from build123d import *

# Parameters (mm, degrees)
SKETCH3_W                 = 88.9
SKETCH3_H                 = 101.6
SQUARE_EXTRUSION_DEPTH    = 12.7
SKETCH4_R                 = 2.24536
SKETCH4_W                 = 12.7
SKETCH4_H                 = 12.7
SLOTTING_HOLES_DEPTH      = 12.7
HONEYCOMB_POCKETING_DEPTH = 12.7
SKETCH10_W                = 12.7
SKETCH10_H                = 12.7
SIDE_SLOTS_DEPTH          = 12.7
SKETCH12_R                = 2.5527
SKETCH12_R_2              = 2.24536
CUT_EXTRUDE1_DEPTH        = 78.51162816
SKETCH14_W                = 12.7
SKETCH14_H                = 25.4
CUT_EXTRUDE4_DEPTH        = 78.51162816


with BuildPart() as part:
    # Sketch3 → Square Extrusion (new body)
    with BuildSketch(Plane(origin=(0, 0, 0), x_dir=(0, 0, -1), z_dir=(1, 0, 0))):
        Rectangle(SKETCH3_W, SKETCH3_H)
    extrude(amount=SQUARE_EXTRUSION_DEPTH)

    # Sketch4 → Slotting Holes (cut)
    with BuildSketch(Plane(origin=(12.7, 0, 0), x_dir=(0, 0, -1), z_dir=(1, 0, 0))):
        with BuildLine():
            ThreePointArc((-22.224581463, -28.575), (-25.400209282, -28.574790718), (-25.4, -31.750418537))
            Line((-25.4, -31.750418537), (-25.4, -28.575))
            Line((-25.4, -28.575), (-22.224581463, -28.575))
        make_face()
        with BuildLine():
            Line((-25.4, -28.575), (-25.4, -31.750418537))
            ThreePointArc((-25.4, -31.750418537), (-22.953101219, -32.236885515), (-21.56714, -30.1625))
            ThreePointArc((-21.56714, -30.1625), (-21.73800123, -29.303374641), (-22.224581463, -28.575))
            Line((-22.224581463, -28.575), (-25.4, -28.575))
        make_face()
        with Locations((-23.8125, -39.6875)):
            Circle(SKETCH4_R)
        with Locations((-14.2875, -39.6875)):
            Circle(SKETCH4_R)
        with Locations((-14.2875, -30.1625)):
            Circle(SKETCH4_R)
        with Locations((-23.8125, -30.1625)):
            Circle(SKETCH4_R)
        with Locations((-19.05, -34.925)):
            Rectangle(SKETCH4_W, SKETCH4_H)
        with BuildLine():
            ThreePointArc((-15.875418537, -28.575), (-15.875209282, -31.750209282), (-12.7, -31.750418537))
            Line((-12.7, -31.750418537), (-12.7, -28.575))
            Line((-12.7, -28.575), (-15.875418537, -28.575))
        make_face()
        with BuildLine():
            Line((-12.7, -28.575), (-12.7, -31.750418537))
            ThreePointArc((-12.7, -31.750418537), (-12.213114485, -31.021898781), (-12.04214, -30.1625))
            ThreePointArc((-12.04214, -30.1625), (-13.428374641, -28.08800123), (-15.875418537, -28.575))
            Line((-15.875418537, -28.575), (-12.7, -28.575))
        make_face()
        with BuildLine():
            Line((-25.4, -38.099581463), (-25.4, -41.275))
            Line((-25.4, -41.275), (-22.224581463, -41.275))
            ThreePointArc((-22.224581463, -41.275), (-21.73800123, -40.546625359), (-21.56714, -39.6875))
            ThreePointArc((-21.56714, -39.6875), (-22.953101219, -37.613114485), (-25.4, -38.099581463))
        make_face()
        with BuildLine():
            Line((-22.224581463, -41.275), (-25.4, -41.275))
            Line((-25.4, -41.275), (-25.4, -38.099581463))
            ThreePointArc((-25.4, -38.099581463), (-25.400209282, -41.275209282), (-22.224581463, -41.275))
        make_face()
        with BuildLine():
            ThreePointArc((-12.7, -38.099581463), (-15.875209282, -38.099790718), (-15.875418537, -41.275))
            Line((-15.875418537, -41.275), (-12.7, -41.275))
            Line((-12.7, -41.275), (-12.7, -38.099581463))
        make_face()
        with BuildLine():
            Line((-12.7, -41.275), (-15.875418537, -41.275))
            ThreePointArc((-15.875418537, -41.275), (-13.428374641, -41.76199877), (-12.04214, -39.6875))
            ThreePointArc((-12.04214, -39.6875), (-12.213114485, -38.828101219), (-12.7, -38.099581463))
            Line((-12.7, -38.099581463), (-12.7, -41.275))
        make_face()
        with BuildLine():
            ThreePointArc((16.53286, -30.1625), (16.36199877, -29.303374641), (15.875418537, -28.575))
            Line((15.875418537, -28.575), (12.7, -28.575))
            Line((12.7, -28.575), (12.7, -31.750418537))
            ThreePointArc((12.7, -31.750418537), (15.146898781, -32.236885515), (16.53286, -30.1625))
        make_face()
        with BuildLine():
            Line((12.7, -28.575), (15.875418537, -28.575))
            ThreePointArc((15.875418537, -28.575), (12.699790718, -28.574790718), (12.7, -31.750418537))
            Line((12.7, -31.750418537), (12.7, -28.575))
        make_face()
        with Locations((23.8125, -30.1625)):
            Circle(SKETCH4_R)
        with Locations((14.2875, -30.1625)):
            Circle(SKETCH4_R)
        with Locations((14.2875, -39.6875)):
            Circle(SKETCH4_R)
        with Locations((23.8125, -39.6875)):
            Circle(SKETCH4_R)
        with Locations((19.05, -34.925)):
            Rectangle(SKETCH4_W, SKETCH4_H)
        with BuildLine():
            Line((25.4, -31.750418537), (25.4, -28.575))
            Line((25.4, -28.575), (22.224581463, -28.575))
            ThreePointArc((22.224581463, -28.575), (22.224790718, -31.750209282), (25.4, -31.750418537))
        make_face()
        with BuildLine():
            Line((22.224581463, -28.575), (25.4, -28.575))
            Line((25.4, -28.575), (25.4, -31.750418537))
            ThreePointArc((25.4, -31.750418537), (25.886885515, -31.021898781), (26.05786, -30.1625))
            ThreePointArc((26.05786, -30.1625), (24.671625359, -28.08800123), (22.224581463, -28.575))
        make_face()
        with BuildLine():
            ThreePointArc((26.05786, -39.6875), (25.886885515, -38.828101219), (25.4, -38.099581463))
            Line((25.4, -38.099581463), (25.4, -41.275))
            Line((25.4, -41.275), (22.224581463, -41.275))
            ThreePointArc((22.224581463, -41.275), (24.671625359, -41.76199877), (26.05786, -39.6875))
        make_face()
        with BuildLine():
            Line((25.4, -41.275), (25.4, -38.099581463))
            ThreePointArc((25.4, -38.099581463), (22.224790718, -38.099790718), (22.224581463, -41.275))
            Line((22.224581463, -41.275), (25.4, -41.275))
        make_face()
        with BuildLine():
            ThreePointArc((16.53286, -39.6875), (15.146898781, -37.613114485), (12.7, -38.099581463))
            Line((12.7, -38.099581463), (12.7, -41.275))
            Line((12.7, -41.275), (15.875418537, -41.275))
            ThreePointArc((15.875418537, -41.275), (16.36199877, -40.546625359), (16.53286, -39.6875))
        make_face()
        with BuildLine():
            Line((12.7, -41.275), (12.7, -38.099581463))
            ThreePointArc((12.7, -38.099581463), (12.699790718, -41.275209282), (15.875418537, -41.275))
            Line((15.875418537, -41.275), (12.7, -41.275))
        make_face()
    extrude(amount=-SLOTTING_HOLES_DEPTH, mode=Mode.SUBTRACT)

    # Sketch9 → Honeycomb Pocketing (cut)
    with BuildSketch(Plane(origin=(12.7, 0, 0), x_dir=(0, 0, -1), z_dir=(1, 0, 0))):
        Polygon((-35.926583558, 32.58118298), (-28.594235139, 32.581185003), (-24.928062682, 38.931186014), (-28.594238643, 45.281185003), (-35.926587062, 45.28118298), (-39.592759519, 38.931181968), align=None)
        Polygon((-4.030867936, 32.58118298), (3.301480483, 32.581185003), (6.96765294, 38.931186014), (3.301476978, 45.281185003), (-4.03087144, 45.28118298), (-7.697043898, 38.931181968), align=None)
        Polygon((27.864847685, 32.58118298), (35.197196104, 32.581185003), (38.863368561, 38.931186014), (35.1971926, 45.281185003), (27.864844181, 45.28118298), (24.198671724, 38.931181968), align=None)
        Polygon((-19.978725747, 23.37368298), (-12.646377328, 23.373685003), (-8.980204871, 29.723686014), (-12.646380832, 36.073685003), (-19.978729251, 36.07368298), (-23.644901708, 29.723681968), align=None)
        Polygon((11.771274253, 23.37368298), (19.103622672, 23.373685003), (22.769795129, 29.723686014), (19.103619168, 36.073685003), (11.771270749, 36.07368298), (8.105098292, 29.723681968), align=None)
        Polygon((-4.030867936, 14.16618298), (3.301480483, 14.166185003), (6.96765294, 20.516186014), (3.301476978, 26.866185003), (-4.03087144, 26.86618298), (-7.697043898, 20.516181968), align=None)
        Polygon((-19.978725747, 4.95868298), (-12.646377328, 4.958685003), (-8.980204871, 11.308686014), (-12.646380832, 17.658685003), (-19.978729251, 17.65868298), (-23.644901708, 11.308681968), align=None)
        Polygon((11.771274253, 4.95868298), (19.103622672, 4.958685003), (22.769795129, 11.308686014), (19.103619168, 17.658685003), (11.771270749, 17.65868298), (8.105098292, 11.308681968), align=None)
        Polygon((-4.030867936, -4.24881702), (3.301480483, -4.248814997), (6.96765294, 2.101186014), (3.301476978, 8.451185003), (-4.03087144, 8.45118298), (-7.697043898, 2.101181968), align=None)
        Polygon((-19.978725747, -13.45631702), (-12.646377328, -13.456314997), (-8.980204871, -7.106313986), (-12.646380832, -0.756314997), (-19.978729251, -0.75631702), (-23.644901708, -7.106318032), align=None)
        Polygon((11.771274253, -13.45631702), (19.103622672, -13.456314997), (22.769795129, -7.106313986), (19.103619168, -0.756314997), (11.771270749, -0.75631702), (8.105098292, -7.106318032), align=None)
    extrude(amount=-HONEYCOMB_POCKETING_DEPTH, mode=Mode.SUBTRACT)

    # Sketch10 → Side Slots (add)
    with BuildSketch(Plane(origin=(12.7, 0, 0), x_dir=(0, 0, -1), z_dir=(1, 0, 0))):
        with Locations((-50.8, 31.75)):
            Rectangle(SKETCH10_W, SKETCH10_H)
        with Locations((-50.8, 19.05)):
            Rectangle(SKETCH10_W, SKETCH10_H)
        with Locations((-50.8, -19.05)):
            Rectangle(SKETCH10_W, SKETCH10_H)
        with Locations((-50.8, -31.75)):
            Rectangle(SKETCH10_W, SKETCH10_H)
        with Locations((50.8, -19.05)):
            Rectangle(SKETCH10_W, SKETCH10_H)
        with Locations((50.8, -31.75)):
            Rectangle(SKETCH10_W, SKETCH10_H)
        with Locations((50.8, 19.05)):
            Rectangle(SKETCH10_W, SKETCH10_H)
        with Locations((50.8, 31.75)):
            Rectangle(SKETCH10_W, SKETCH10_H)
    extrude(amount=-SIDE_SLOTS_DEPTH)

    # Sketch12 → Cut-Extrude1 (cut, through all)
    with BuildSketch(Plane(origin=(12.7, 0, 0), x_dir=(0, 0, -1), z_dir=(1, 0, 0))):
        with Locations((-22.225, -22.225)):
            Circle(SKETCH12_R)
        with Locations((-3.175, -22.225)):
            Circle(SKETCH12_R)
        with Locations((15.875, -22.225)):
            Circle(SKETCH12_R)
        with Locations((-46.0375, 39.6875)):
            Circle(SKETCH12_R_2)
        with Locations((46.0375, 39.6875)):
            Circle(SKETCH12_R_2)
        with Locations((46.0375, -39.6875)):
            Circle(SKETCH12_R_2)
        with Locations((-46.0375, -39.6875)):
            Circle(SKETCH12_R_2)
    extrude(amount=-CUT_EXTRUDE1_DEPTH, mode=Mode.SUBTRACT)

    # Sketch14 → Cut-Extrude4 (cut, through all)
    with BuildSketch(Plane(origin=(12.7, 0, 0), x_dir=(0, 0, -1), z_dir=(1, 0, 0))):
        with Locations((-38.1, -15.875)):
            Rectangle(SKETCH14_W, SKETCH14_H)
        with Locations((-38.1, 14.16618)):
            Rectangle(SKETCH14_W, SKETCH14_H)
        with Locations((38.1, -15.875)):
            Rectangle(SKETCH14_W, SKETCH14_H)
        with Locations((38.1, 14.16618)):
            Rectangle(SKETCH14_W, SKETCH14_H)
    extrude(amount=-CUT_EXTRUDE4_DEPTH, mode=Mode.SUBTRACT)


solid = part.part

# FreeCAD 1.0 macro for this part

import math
import FreeCAD as App
import Part
import Sketcher
from FreeCAD import Vector
Q = App.Units.Quantity

doc = App.newDocument("Part")
body = doc.addObject("PartDesign::Body", "Body")

# Sketch on YZ plane
sketch1 = doc.addObject("Sketcher::SketchObject", "Sketch")
body.addObject(sketch1)
sketch1.AttachmentSupport = (doc.YZ_Plane, [""])
sketch1.MapMode = "FlatFace"
sketch1.addGeometry(Part.LineSegment(Vector(51, 44, 0), Vector(-51, 44, 0)), False)
sketch1.addGeometry(Part.LineSegment(Vector(-51, 44, 0), Vector(-51, -44, 0)), False)
sketch1.addGeometry(Part.LineSegment(Vector(-51, -44, 0), Vector(51, -44, 0)), False)
sketch1.addGeometry(Part.LineSegment(Vector(51, -44, 0), Vector(51, 44, 0)), False)
sketch1.addConstraint(Sketcher.Constraint("Coincident", 0, 2, 1, 1))
sketch1.addConstraint(Sketcher.Constraint("Coincident", 1, 2, 2, 1))
sketch1.addConstraint(Sketcher.Constraint("Coincident", 2, 2, 3, 1))
sketch1.addConstraint(Sketcher.Constraint("Coincident", 3, 2, 0, 1))
sketch1.addConstraint(Sketcher.Constraint("Horizontal", 0))
sketch1.addConstraint(Sketcher.Constraint("Vertical", 1))
sketch1.addConstraint(Sketcher.Constraint("Horizontal", 2))
sketch1.addConstraint(Sketcher.Constraint("Vertical", 3))
sketch1.addConstraint(Sketcher.Constraint("Symmetric", 0, 2, 2, 2, -1, 1))
sketch1.addConstraint(Sketcher.Constraint("DistanceX", 0, 2, 0, 1, Q("4 in")))
sketch1.addConstraint(Sketcher.Constraint("DistanceY", 1, 2, 1, 1, Q("3.5 in")))
pad1 = doc.addObject("PartDesign::Pad", "Pad")
body.addObject(pad1)
pad1.Profile = sketch1
pad1.Length = Q("0.5 in")

# Sketch on YZ plane
sketch2 = doc.addObject("Sketcher::SketchObject", "Sketch001")
body.addObject(sketch2)
sketch2.AttachmentSupport = (doc.YZ_Plane, [""])
sketch2.MapMode = "FlatFace"
sketch2.AttachmentOffset = App.Placement(Vector(0, 0, 0.5 * 25.4), App.Rotation())
sketch2.addGeometry(Part.LineSegment(Vector(-28.6, 15.9, 0), Vector(-28.6, 22.2, 0)), False)
sketch2.addGeometry(Part.ArcOfCircle(Part.Circle(Vector(-30.2, 23.8, 0), Vector(0, 0, 1), 2.2), math.radians(-45), math.radians(135)), False)
sketch2.addGeometry(Part.LineSegment(Vector(-31.8, 25.4, 0), Vector(-38.1, 25.4, 0)), False)
sketch2.addGeometry(Part.ArcOfCircle(Part.Circle(Vector(-39.7, 23.8, 0), Vector(0, 0, 1), 2.2), math.radians(45), math.radians(225)), False)
sketch2.addGeometry(Part.LineSegment(Vector(-41.3, 22.2, 0), Vector(-41.3, 15.9, 0)), False)
sketch2.addGeometry(Part.ArcOfCircle(Part.Circle(Vector(-39.7, 14.3, 0), Vector(0, 0, 1), 2.2), math.radians(135), math.radians(315)), False)
sketch2.addGeometry(Part.LineSegment(Vector(-38.1, 12.7, 0), Vector(-31.8, 12.7, 0)), False)
sketch2.addGeometry(Part.ArcOfCircle(Part.Circle(Vector(-30.2, 14.3, 0), Vector(0, 0, 1), 2.2), math.radians(-135), math.radians(45)), False)
sketch2.addGeometry(Part.ArcOfCircle(Part.Circle(Vector(-39.7, -14.3, 0), Vector(0, 0, 1), 2.2), math.radians(45), math.radians(225)), False)
sketch2.addGeometry(Part.LineSegment(Vector(-41.3, -15.9, 0), Vector(-41.3, -22.2, 0)), False)
sketch2.addGeometry(Part.ArcOfCircle(Part.Circle(Vector(-39.7, -23.8, 0), Vector(0, 0, 1), 2.2), math.radians(135), math.radians(315)), False)
sketch2.addGeometry(Part.LineSegment(Vector(-38.1, -25.4, 0), Vector(-31.8, -25.4, 0)), False)
sketch2.addGeometry(Part.ArcOfCircle(Part.Circle(Vector(-30.2, -23.8, 0), Vector(0, 0, 1), 2.2), math.radians(-135), math.radians(45)), False)
sketch2.addGeometry(Part.LineSegment(Vector(-28.6, -22.2, 0), Vector(-28.6, -15.9, 0)), False)
sketch2.addGeometry(Part.ArcOfCircle(Part.Circle(Vector(-30.2, -14.3, 0), Vector(0, 0, 1), 2.2), math.radians(-45), math.radians(135)), False)
sketch2.addGeometry(Part.LineSegment(Vector(-31.8, -12.7, 0), Vector(-38.1, -12.7, 0)), False)
sketch2.addConstraint(Sketcher.Constraint("Coincident", 0, 2, 1, 1))
sketch2.addConstraint(Sketcher.Constraint("Coincident", 1, 2, 2, 1))
sketch2.addConstraint(Sketcher.Constraint("Coincident", 2, 2, 3, 1))
sketch2.addConstraint(Sketcher.Constraint("Coincident", 3, 2, 4, 1))
sketch2.addConstraint(Sketcher.Constraint("Coincident", 4, 2, 5, 1))
sketch2.addConstraint(Sketcher.Constraint("Coincident", 5, 2, 6, 1))
sketch2.addConstraint(Sketcher.Constraint("Coincident", 6, 2, 7, 1))
sketch2.addConstraint(Sketcher.Constraint("Coincident", 7, 2, 0, 1))
sketch2.addConstraint(Sketcher.Constraint("Coincident", 8, 2, 9, 1))
sketch2.addConstraint(Sketcher.Constraint("Coincident", 9, 2, 10, 1))
sketch2.addConstraint(Sketcher.Constraint("Coincident", 10, 2, 11, 1))
sketch2.addConstraint(Sketcher.Constraint("Coincident", 11, 2, 12, 1))
sketch2.addConstraint(Sketcher.Constraint("Coincident", 12, 2, 13, 1))
sketch2.addConstraint(Sketcher.Constraint("Coincident", 13, 2, 14, 1))
sketch2.addConstraint(Sketcher.Constraint("Coincident", 14, 2, 15, 1))
sketch2.addConstraint(Sketcher.Constraint("Coincident", 15, 2, 8, 1))
sketch2.addConstraint(Sketcher.Constraint("Vertical", 0))
sketch2.addConstraint(Sketcher.Constraint("Horizontal", 2))
sketch2.addConstraint(Sketcher.Constraint("Vertical", 4))
sketch2.addConstraint(Sketcher.Constraint("Horizontal", 6))
sketch2.addConstraint(Sketcher.Constraint("Vertical", 9))
sketch2.addConstraint(Sketcher.Constraint("Horizontal", 11))
sketch2.addConstraint(Sketcher.Constraint("Vertical", 13))
sketch2.addConstraint(Sketcher.Constraint("Horizontal", 15))
sketch2.addConstraint(Sketcher.Constraint("Equal", 1, 3))
sketch2.addConstraint(Sketcher.Constraint("Equal", 3, 5))
sketch2.addConstraint(Sketcher.Constraint("Equal", 5, 7))
sketch2.addConstraint(Sketcher.Constraint("Equal", 7, 8))
sketch2.addConstraint(Sketcher.Constraint("Equal", 8, 10))
sketch2.addConstraint(Sketcher.Constraint("Equal", 10, 12))
sketch2.addConstraint(Sketcher.Constraint("Equal", 12, 14))
sketch2.addConstraint(Sketcher.Constraint("Symmetric", 5, 3, 8, 3, -1))
sketch2.addConstraint(Sketcher.Constraint("Symmetric", 3, 3, 10, 3, -1))
sketch2.addConstraint(Sketcher.Constraint("Symmetric", 1, 3, 12, 3, -1))
sketch2.addConstraint(Sketcher.Constraint("Symmetric", 7, 3, 14, 3, -1))
sketch2.addConstraint(Sketcher.Constraint("Horizontal", 1, 3, 3, 3))
sketch2.addConstraint(Sketcher.Constraint("Horizontal", 5, 3, 7, 3))
sketch2.addConstraint(Sketcher.Constraint("Horizontal", 0, 2, 3, 2))
sketch2.addConstraint(Sketcher.Constraint("Horizontal", 4, 2, 7, 2))
sketch2.addConstraint(Sketcher.Constraint("Horizontal", 9, 2, 12, 2))
sketch2.addConstraint(Sketcher.Constraint("Vertical", 3, 3, 5, 3))
sketch2.addConstraint(Sketcher.Constraint("Vertical", 2, 2, 5, 2))
sketch2.addConstraint(Sketcher.Constraint("Vertical", 4, 2, 8, 2))
sketch2.addConstraint(Sketcher.Constraint("Vertical", 5, 2, 10, 2))
sketch2.addConstraint(Sketcher.Constraint("Vertical", 11, 2, 14, 2))
sketch2.addConstraint(Sketcher.Constraint("Equal", 15, 0))
sketch2.addConstraint(Sketcher.Constraint("DistanceY", -1, 1, 1, 2, Q("1 in")))
sketch2.addConstraint(Sketcher.Constraint("DistanceY", -1, 1, 5, 2, Q("0.5 in")))
sketch2.addConstraint(Sketcher.Constraint("Radius", 1, Q("0.0884 in")))
sketch2.addConstraint(Sketcher.Constraint("DistanceX", 1, 3, -1, 1, Q("1.1875 in")))
sketch2.addConstraint(Sketcher.Constraint("DistanceY", -1, 1, 1, 3, Q("0.9375 in")))
sketch2.addConstraint(Sketcher.Constraint("DistanceX", 3, 3, -1, 1, Q("1.5625 in")))
pocket1 = doc.addObject("PartDesign::Pocket", "Pocket")
body.addObject(pocket1)
pocket1.Profile = sketch2
pocket1.Length = Q("0.5 in")

# Sketch on YZ plane
sketch3 = doc.addObject("Sketcher::SketchObject", "Sketch002")
body.addObject(sketch3)
sketch3.AttachmentSupport = (doc.YZ_Plane, [""])
sketch3.MapMode = "FlatFace"
sketch3.AttachmentOffset = App.Placement(Vector(0, 0, 0.5 * 25.4), App.Rotation())
sketch3.addGeometry(Part.LineSegment(Vector(33, 36, 0), Vector(33, 29, 0)), False)
sketch3.addGeometry(Part.LineSegment(Vector(33, 29, 0), Vector(39, 25, 0)), False)
sketch3.addGeometry(Part.LineSegment(Vector(39, 25, 0), Vector(45, 29, 0)), False)
sketch3.addGeometry(Part.LineSegment(Vector(45, 29, 0), Vector(45, 36, 0)), False)
sketch3.addGeometry(Part.LineSegment(Vector(45, 36, 0), Vector(39, 40, 0)), False)
sketch3.addGeometry(Part.LineSegment(Vector(39, 40, 0), Vector(33, 36, 0)), False)
sketch3.addGeometry(Part.LineSegment(Vector(33, 4, 0), Vector(33, -3, 0)), False)
sketch3.addGeometry(Part.LineSegment(Vector(33, -3, 0), Vector(39, -7, 0)), False)
sketch3.addGeometry(Part.LineSegment(Vector(39, -7, 0), Vector(45, -3, 0)), False)
sketch3.addGeometry(Part.LineSegment(Vector(45, -3, 0), Vector(45, 4, 0)), False)
sketch3.addGeometry(Part.LineSegment(Vector(45, 4, 0), Vector(39, 8, 0)), False)
sketch3.addGeometry(Part.LineSegment(Vector(39, 8, 0), Vector(33, 4, 0)), False)
sketch3.addGeometry(Part.LineSegment(Vector(33, -28, 0), Vector(33, -35, 0)), False)
sketch3.addGeometry(Part.LineSegment(Vector(33, -35, 0), Vector(39, -39, 0)), False)
sketch3.addGeometry(Part.LineSegment(Vector(39, -39, 0), Vector(45, -35, 0)), False)
sketch3.addGeometry(Part.LineSegment(Vector(45, -35, 0), Vector(45, -28, 0)), False)
sketch3.addGeometry(Part.LineSegment(Vector(45, -28, 0), Vector(39, -24, 0)), False)
sketch3.addGeometry(Part.LineSegment(Vector(39, -24, 0), Vector(33, -28, 0)), False)
sketch3.addGeometry(Part.LineSegment(Vector(23, 20, 0), Vector(23, 13, 0)), False)
sketch3.addGeometry(Part.LineSegment(Vector(23, 13, 0), Vector(30, 9, 0)), False)
sketch3.addGeometry(Part.LineSegment(Vector(30, 9, 0), Vector(36, 13, 0)), False)
sketch3.addGeometry(Part.LineSegment(Vector(36, 13, 0), Vector(36, 20, 0)), False)
sketch3.addGeometry(Part.LineSegment(Vector(36, 20, 0), Vector(30, 24, 0)), False)
sketch3.addGeometry(Part.LineSegment(Vector(30, 24, 0), Vector(23, 20, 0)), False)
sketch3.addGeometry(Part.LineSegment(Vector(23, -12, 0), Vector(23, -19, 0)), False)
sketch3.addGeometry(Part.LineSegment(Vector(23, -19, 0), Vector(30, -23, 0)), False)
sketch3.addGeometry(Part.LineSegment(Vector(30, -23, 0), Vector(36, -19, 0)), False)
sketch3.addGeometry(Part.LineSegment(Vector(36, -19, 0), Vector(36, -12, 0)), False)
sketch3.addGeometry(Part.LineSegment(Vector(36, -12, 0), Vector(30, -8, 0)), False)
sketch3.addGeometry(Part.LineSegment(Vector(30, -8, 0), Vector(23, -12, 0)), False)
sketch3.addGeometry(Part.LineSegment(Vector(14, 4, 0), Vector(14, -3, 0)), False)
sketch3.addGeometry(Part.LineSegment(Vector(14, -3, 0), Vector(21, -7, 0)), False)
sketch3.addGeometry(Part.LineSegment(Vector(21, -7, 0), Vector(27, -3, 0)), False)
sketch3.addGeometry(Part.LineSegment(Vector(27, -3, 0), Vector(27, 4, 0)), False)
sketch3.addGeometry(Part.LineSegment(Vector(27, 4, 0), Vector(21, 8, 0)), False)
sketch3.addGeometry(Part.LineSegment(Vector(21, 8, 0), Vector(14, 4, 0)), False)
sketch3.addGeometry(Part.LineSegment(Vector(5, 20, 0), Vector(5, 13, 0)), False)
sketch3.addGeometry(Part.LineSegment(Vector(5, 13, 0), Vector(11, 9, 0)), False)
sketch3.addGeometry(Part.LineSegment(Vector(11, 9, 0), Vector(18, 13, 0)), False)
sketch3.addGeometry(Part.LineSegment(Vector(18, 13, 0), Vector(18, 20, 0)), False)
sketch3.addGeometry(Part.LineSegment(Vector(18, 20, 0), Vector(11, 24, 0)), False)
sketch3.addGeometry(Part.LineSegment(Vector(11, 24, 0), Vector(5, 20, 0)), False)
sketch3.addGeometry(Part.LineSegment(Vector(5, -12, 0), Vector(5, -19, 0)), False)
sketch3.addGeometry(Part.LineSegment(Vector(5, -19, 0), Vector(11, -23, 0)), False)
sketch3.addGeometry(Part.LineSegment(Vector(11, -23, 0), Vector(18, -19, 0)), False)
sketch3.addGeometry(Part.LineSegment(Vector(18, -19, 0), Vector(18, -12, 0)), False)
sketch3.addGeometry(Part.LineSegment(Vector(18, -12, 0), Vector(11, -8, 0)), False)
sketch3.addGeometry(Part.LineSegment(Vector(11, -8, 0), Vector(5, -12, 0)), False)
sketch3.addGeometry(Part.LineSegment(Vector(-4, 4, 0), Vector(-4, -3, 0)), False)
sketch3.addGeometry(Part.LineSegment(Vector(-4, -3, 0), Vector(2, -7, 0)), False)
sketch3.addGeometry(Part.LineSegment(Vector(2, -7, 0), Vector(8, -3, 0)), False)
sketch3.addGeometry(Part.LineSegment(Vector(8, -3, 0), Vector(8, 4, 0)), False)
sketch3.addGeometry(Part.LineSegment(Vector(8, 4, 0), Vector(2, 8, 0)), False)
sketch3.addGeometry(Part.LineSegment(Vector(2, 8, 0), Vector(-4, 4, 0)), False)
sketch3.addGeometry(Part.LineSegment(Vector(-13, 20, 0), Vector(-13, 13, 0)), False)
sketch3.addGeometry(Part.LineSegment(Vector(-13, 13, 0), Vector(-7, 9, 0)), False)
sketch3.addGeometry(Part.LineSegment(Vector(-7, 9, 0), Vector(-1, 13, 0)), False)
sketch3.addGeometry(Part.LineSegment(Vector(-1, 13, 0), Vector(-1, 20, 0)), False)
sketch3.addGeometry(Part.LineSegment(Vector(-1, 20, 0), Vector(-7, 24, 0)), False)
sketch3.addGeometry(Part.LineSegment(Vector(-7, 24, 0), Vector(-13, 20, 0)), False)
sketch3.addGeometry(Part.LineSegment(Vector(-13, -12, 0), Vector(-13, -19, 0)), False)
sketch3.addGeometry(Part.LineSegment(Vector(-13, -19, 0), Vector(-7, -23, 0)), False)
sketch3.addGeometry(Part.LineSegment(Vector(-7, -23, 0), Vector(-1, -19, 0)), False)
sketch3.addGeometry(Part.LineSegment(Vector(-1, -19, 0), Vector(-1, -12, 0)), False)
sketch3.addGeometry(Part.LineSegment(Vector(-1, -12, 0), Vector(-7, -8, 0)), False)
sketch3.addGeometry(Part.LineSegment(Vector(-7, -8, 0), Vector(-13, -12, 0)), False)
sketch3.addConstraint(Sketcher.Constraint("Coincident", 0, 2, 1, 1))
sketch3.addConstraint(Sketcher.Constraint("Coincident", 1, 2, 2, 1))
sketch3.addConstraint(Sketcher.Constraint("Coincident", 2, 2, 3, 1))
sketch3.addConstraint(Sketcher.Constraint("Coincident", 3, 2, 4, 1))
sketch3.addConstraint(Sketcher.Constraint("Coincident", 4, 2, 5, 1))
sketch3.addConstraint(Sketcher.Constraint("Coincident", 5, 2, 0, 1))
sketch3.addConstraint(Sketcher.Constraint("Coincident", 6, 2, 7, 1))
sketch3.addConstraint(Sketcher.Constraint("Coincident", 7, 2, 8, 1))
sketch3.addConstraint(Sketcher.Constraint("Coincident", 8, 2, 9, 1))
sketch3.addConstraint(Sketcher.Constraint("Coincident", 9, 2, 10, 1))
sketch3.addConstraint(Sketcher.Constraint("Coincident", 10, 2, 11, 1))
sketch3.addConstraint(Sketcher.Constraint("Coincident", 11, 2, 6, 1))
sketch3.addConstraint(Sketcher.Constraint("Coincident", 12, 2, 13, 1))
sketch3.addConstraint(Sketcher.Constraint("Coincident", 13, 2, 14, 1))
sketch3.addConstraint(Sketcher.Constraint("Coincident", 14, 2, 15, 1))
sketch3.addConstraint(Sketcher.Constraint("Coincident", 15, 2, 16, 1))
sketch3.addConstraint(Sketcher.Constraint("Coincident", 16, 2, 17, 1))
sketch3.addConstraint(Sketcher.Constraint("Coincident", 17, 2, 12, 1))
sketch3.addConstraint(Sketcher.Constraint("Coincident", 18, 2, 19, 1))
sketch3.addConstraint(Sketcher.Constraint("Coincident", 19, 2, 20, 1))
sketch3.addConstraint(Sketcher.Constraint("Coincident", 20, 2, 21, 1))
sketch3.addConstraint(Sketcher.Constraint("Coincident", 21, 2, 22, 1))
sketch3.addConstraint(Sketcher.Constraint("Coincident", 22, 2, 23, 1))
sketch3.addConstraint(Sketcher.Constraint("Coincident", 23, 2, 18, 1))
sketch3.addConstraint(Sketcher.Constraint("Coincident", 24, 2, 25, 1))
sketch3.addConstraint(Sketcher.Constraint("Coincident", 25, 2, 26, 1))
sketch3.addConstraint(Sketcher.Constraint("Coincident", 26, 2, 27, 1))
sketch3.addConstraint(Sketcher.Constraint("Coincident", 27, 2, 28, 1))
sketch3.addConstraint(Sketcher.Constraint("Coincident", 28, 2, 29, 1))
sketch3.addConstraint(Sketcher.Constraint("Coincident", 29, 2, 24, 1))
sketch3.addConstraint(Sketcher.Constraint("Coincident", 30, 2, 31, 1))
sketch3.addConstraint(Sketcher.Constraint("Coincident", 31, 2, 32, 1))
sketch3.addConstraint(Sketcher.Constraint("Coincident", 32, 2, 33, 1))
sketch3.addConstraint(Sketcher.Constraint("Coincident", 33, 2, 34, 1))
sketch3.addConstraint(Sketcher.Constraint("Coincident", 34, 2, 35, 1))
sketch3.addConstraint(Sketcher.Constraint("Coincident", 35, 2, 30, 1))
sketch3.addConstraint(Sketcher.Constraint("Coincident", 36, 2, 37, 1))
sketch3.addConstraint(Sketcher.Constraint("Coincident", 37, 2, 38, 1))
sketch3.addConstraint(Sketcher.Constraint("Coincident", 38, 2, 39, 1))
sketch3.addConstraint(Sketcher.Constraint("Coincident", 39, 2, 40, 1))
sketch3.addConstraint(Sketcher.Constraint("Coincident", 40, 2, 41, 1))
sketch3.addConstraint(Sketcher.Constraint("Coincident", 41, 2, 36, 1))
sketch3.addConstraint(Sketcher.Constraint("Coincident", 42, 2, 43, 1))
sketch3.addConstraint(Sketcher.Constraint("Coincident", 43, 2, 44, 1))
sketch3.addConstraint(Sketcher.Constraint("Coincident", 44, 2, 45, 1))
sketch3.addConstraint(Sketcher.Constraint("Coincident", 45, 2, 46, 1))
sketch3.addConstraint(Sketcher.Constraint("Coincident", 46, 2, 47, 1))
sketch3.addConstraint(Sketcher.Constraint("Coincident", 47, 2, 42, 1))
sketch3.addConstraint(Sketcher.Constraint("Coincident", 48, 2, 49, 1))
sketch3.addConstraint(Sketcher.Constraint("Coincident", 49, 2, 50, 1))
sketch3.addConstraint(Sketcher.Constraint("Coincident", 50, 2, 51, 1))
sketch3.addConstraint(Sketcher.Constraint("Coincident", 51, 2, 52, 1))
sketch3.addConstraint(Sketcher.Constraint("Coincident", 52, 2, 53, 1))
sketch3.addConstraint(Sketcher.Constraint("Coincident", 53, 2, 48, 1))
sketch3.addConstraint(Sketcher.Constraint("Coincident", 54, 2, 55, 1))
sketch3.addConstraint(Sketcher.Constraint("Coincident", 55, 2, 56, 1))
sketch3.addConstraint(Sketcher.Constraint("Coincident", 56, 2, 57, 1))
sketch3.addConstraint(Sketcher.Constraint("Coincident", 57, 2, 58, 1))
sketch3.addConstraint(Sketcher.Constraint("Coincident", 58, 2, 59, 1))
sketch3.addConstraint(Sketcher.Constraint("Coincident", 59, 2, 54, 1))
sketch3.addConstraint(Sketcher.Constraint("Coincident", 60, 2, 61, 1))
sketch3.addConstraint(Sketcher.Constraint("Coincident", 61, 2, 62, 1))
sketch3.addConstraint(Sketcher.Constraint("Coincident", 62, 2, 63, 1))
sketch3.addConstraint(Sketcher.Constraint("Coincident", 63, 2, 64, 1))
sketch3.addConstraint(Sketcher.Constraint("Coincident", 64, 2, 65, 1))
sketch3.addConstraint(Sketcher.Constraint("Coincident", 65, 2, 60, 1))
sketch3.addConstraint(Sketcher.Constraint("Parallel", 0, 3))
sketch3.addConstraint(Sketcher.Constraint("Parallel", 1, 4))
sketch3.addConstraint(Sketcher.Constraint("Parallel", 2, 5))
sketch3.addConstraint(Sketcher.Constraint("Parallel", 3, 6))
sketch3.addConstraint(Sketcher.Constraint("Parallel", 4, 7))
sketch3.addConstraint(Sketcher.Constraint("Parallel", 5, 8))
sketch3.addConstraint(Sketcher.Constraint("Parallel", 6, 9))
sketch3.addConstraint(Sketcher.Constraint("Parallel", 7, 10))
sketch3.addConstraint(Sketcher.Constraint("Parallel", 8, 11))
sketch3.addConstraint(Sketcher.Constraint("Parallel", 9, 12))
sketch3.addConstraint(Sketcher.Constraint("Parallel", 10, 13))
sketch3.addConstraint(Sketcher.Constraint("Parallel", 11, 14))
sketch3.addConstraint(Sketcher.Constraint("Parallel", 12, 15))
sketch3.addConstraint(Sketcher.Constraint("Parallel", 13, 16))
sketch3.addConstraint(Sketcher.Constraint("Parallel", 14, 17))
sketch3.addConstraint(Sketcher.Constraint("Parallel", 15, 18))
sketch3.addConstraint(Sketcher.Constraint("Parallel", 16, 19))
sketch3.addConstraint(Sketcher.Constraint("Parallel", 17, 20))
sketch3.addConstraint(Sketcher.Constraint("Parallel", 18, 21))
sketch3.addConstraint(Sketcher.Constraint("Parallel", 19, 22))
sketch3.addConstraint(Sketcher.Constraint("Parallel", 20, 23))
sketch3.addConstraint(Sketcher.Constraint("Parallel", 21, 24))
sketch3.addConstraint(Sketcher.Constraint("Parallel", 22, 25))
sketch3.addConstraint(Sketcher.Constraint("Parallel", 23, 26))
sketch3.addConstraint(Sketcher.Constraint("Parallel", 24, 27))
sketch3.addConstraint(Sketcher.Constraint("Parallel", 25, 28))
sketch3.addConstraint(Sketcher.Constraint("Parallel", 26, 29))
sketch3.addConstraint(Sketcher.Constraint("Parallel", 27, 30))
sketch3.addConstraint(Sketcher.Constraint("Parallel", 28, 31))
sketch3.addConstraint(Sketcher.Constraint("Parallel", 29, 32))
sketch3.addConstraint(Sketcher.Constraint("Parallel", 30, 33))
sketch3.addConstraint(Sketcher.Constraint("Parallel", 31, 34))
sketch3.addConstraint(Sketcher.Constraint("Parallel", 32, 35))
sketch3.addConstraint(Sketcher.Constraint("Parallel", 33, 36))
sketch3.addConstraint(Sketcher.Constraint("Parallel", 34, 37))
sketch3.addConstraint(Sketcher.Constraint("Parallel", 35, 38))
sketch3.addConstraint(Sketcher.Constraint("Parallel", 36, 39))
sketch3.addConstraint(Sketcher.Constraint("Parallel", 37, 40))
sketch3.addConstraint(Sketcher.Constraint("Parallel", 38, 41))
sketch3.addConstraint(Sketcher.Constraint("Parallel", 39, 42))
sketch3.addConstraint(Sketcher.Constraint("Parallel", 40, 43))
sketch3.addConstraint(Sketcher.Constraint("Parallel", 41, 44))
sketch3.addConstraint(Sketcher.Constraint("Parallel", 42, 45))
sketch3.addConstraint(Sketcher.Constraint("Parallel", 43, 46))
sketch3.addConstraint(Sketcher.Constraint("Parallel", 44, 47))
sketch3.addConstraint(Sketcher.Constraint("Parallel", 45, 48))
sketch3.addConstraint(Sketcher.Constraint("Parallel", 46, 49))
sketch3.addConstraint(Sketcher.Constraint("Parallel", 47, 50))
sketch3.addConstraint(Sketcher.Constraint("Parallel", 48, 51))
sketch3.addConstraint(Sketcher.Constraint("Parallel", 49, 52))
sketch3.addConstraint(Sketcher.Constraint("Parallel", 50, 53))
sketch3.addConstraint(Sketcher.Constraint("Parallel", 51, 54))
sketch3.addConstraint(Sketcher.Constraint("Parallel", 52, 55))
sketch3.addConstraint(Sketcher.Constraint("Parallel", 53, 56))
sketch3.addConstraint(Sketcher.Constraint("Parallel", 54, 57))
sketch3.addConstraint(Sketcher.Constraint("Parallel", 55, 58))
sketch3.addConstraint(Sketcher.Constraint("Parallel", 56, 59))
sketch3.addConstraint(Sketcher.Constraint("Parallel", 57, 60))
sketch3.addConstraint(Sketcher.Constraint("Parallel", 58, 61))
sketch3.addConstraint(Sketcher.Constraint("Parallel", 59, 62))
sketch3.addConstraint(Sketcher.Constraint("Parallel", 60, 63))
sketch3.addConstraint(Sketcher.Constraint("Parallel", 61, 64))
sketch3.addConstraint(Sketcher.Constraint("Parallel", 62, 65))
sketch3.addConstraint(Sketcher.Constraint("Horizontal", 6, 2, 30, 2))
sketch3.addConstraint(Sketcher.Constraint("Horizontal", 7, 2, 31, 2))
sketch3.addConstraint(Sketcher.Constraint("Horizontal", 8, 2, 32, 2))
sketch3.addConstraint(Sketcher.Constraint("Horizontal", 9, 2, 33, 2))
sketch3.addConstraint(Sketcher.Constraint("Horizontal", 10, 2, 34, 2))
sketch3.addConstraint(Sketcher.Constraint("Horizontal", 18, 2, 36, 2))
sketch3.addConstraint(Sketcher.Constraint("Horizontal", 19, 2, 37, 2))
sketch3.addConstraint(Sketcher.Constraint("Horizontal", 20, 2, 38, 2))
sketch3.addConstraint(Sketcher.Constraint("Horizontal", 21, 2, 39, 2))
sketch3.addConstraint(Sketcher.Constraint("Horizontal", 22, 2, 40, 2))
sketch3.addConstraint(Sketcher.Constraint("Horizontal", 24, 2, 42, 2))
sketch3.addConstraint(Sketcher.Constraint("Horizontal", 25, 2, 43, 2))
sketch3.addConstraint(Sketcher.Constraint("Horizontal", 26, 2, 44, 2))
sketch3.addConstraint(Sketcher.Constraint("Horizontal", 27, 2, 45, 2))
sketch3.addConstraint(Sketcher.Constraint("Horizontal", 28, 2, 46, 2))
sketch3.addConstraint(Sketcher.Constraint("Horizontal", 30, 2, 48, 2))
sketch3.addConstraint(Sketcher.Constraint("Horizontal", 31, 2, 49, 2))
sketch3.addConstraint(Sketcher.Constraint("Horizontal", 32, 2, 50, 2))
sketch3.addConstraint(Sketcher.Constraint("Horizontal", 33, 2, 51, 2))
sketch3.addConstraint(Sketcher.Constraint("Horizontal", 34, 2, 52, 2))
sketch3.addConstraint(Sketcher.Constraint("Horizontal", 36, 2, 54, 2))
sketch3.addConstraint(Sketcher.Constraint("Horizontal", 37, 2, 55, 2))
sketch3.addConstraint(Sketcher.Constraint("Horizontal", 38, 2, 56, 2))
sketch3.addConstraint(Sketcher.Constraint("Horizontal", 39, 2, 57, 2))
sketch3.addConstraint(Sketcher.Constraint("Horizontal", 40, 2, 58, 2))
sketch3.addConstraint(Sketcher.Constraint("Horizontal", 42, 2, 60, 2))
sketch3.addConstraint(Sketcher.Constraint("Horizontal", 43, 2, 61, 2))
sketch3.addConstraint(Sketcher.Constraint("Horizontal", 44, 2, 62, 2))
sketch3.addConstraint(Sketcher.Constraint("Horizontal", 45, 2, 63, 2))
sketch3.addConstraint(Sketcher.Constraint("Horizontal", 46, 2, 64, 2))
sketch3.addConstraint(Sketcher.Constraint("Vertical", 0, 2, 6, 2))
sketch3.addConstraint(Sketcher.Constraint("Vertical", 1, 2, 7, 2))
sketch3.addConstraint(Sketcher.Constraint("Vertical", 2, 2, 8, 2))
sketch3.addConstraint(Sketcher.Constraint("Vertical", 4, 2, 10, 2))
sketch3.addConstraint(Sketcher.Constraint("Vertical", 6, 2, 12, 2))
sketch3.addConstraint(Sketcher.Constraint("Vertical", 7, 2, 13, 2))
sketch3.addConstraint(Sketcher.Constraint("Vertical", 8, 2, 14, 2))
sketch3.addConstraint(Sketcher.Constraint("Vertical", 10, 2, 16, 2))
sketch3.addConstraint(Sketcher.Constraint("Vertical", 18, 2, 24, 2))
sketch3.addConstraint(Sketcher.Constraint("Vertical", 19, 2, 25, 2))
sketch3.addConstraint(Sketcher.Constraint("Vertical", 20, 2, 26, 2))
sketch3.addConstraint(Sketcher.Constraint("Vertical", 22, 2, 28, 2))
sketch3.addConstraint(Sketcher.Constraint("Vertical", 36, 2, 42, 2))
sketch3.addConstraint(Sketcher.Constraint("Vertical", 54, 2, 60, 2))
sketch3.addConstraint(Sketcher.Constraint("Equal", 0, 1))
sketch3.addConstraint(Sketcher.Constraint("Equal", 1, 2))
sketch3.addConstraint(Sketcher.Constraint("Equal", 2, 3))
sketch3.addConstraint(Sketcher.Constraint("Equal", 5, 6))
sketch3.addConstraint(Sketcher.Constraint("Equal", 11, 12))
sketch3.addConstraint(Sketcher.Constraint("Equal", 17, 18))
sketch3.addConstraint(Sketcher.Constraint("Equal", 18, 19))
sketch3.addConstraint(Sketcher.Constraint("Equal", 19, 20))
sketch3.addConstraint(Sketcher.Constraint("Equal", 20, 21))
sketch3.addConstraint(Sketcher.Constraint("Equal", 23, 24))
sketch3.addConstraint(Sketcher.Constraint("Angle", 0, Q("-89.999984 deg")))
sketch3.addConstraint(Sketcher.Constraint("Angle", 1, Q("-29.999984 deg")))
sketch3.addConstraint(Sketcher.Constraint("Angle", 2, Q("30.000016 deg")))
sketch3.addConstraint(Sketcher.Constraint("DistanceY", -1, 1, 22, 2, 23.644902))
sketch3.addConstraint(Sketcher.Constraint("DistanceY", 28, 2, -1, 1, 8.105098))
sketch3.addConstraint(Sketcher.Constraint("Distance", 0, 7.332348))
sketch3.addConstraint(Sketcher.Constraint("DistanceY", -1, 1, 2, 2, 28.594239))
sketch3.addConstraint(Sketcher.Constraint("DistanceX", -1, 1, 4, 2, 38.931182))
sketch3.addConstraint(Sketcher.Constraint("DistanceY", 6, 2, -1, 1, 3.30148))
sketch3.addConstraint(Sketcher.Constraint("DistanceY", 13, 2, -1, 1, 38.863369))
sketch3.addConstraint(Sketcher.Constraint("DistanceX", -1, 1, 22, 2, 29.723682))
sketch3.addConstraint(Sketcher.Constraint("DistanceX", -1, 1, 34, 2, 20.516182))
sketch3.addConstraint(Sketcher.Constraint("DistanceX", -1, 1, 40, 2, 11.308682))
sketch3.addConstraint(Sketcher.Constraint("DistanceX", -1, 1, 52, 2, 2.101182))
sketch3.addConstraint(Sketcher.Constraint("DistanceX", 58, 2, -1, 1, 7.106318))
pocket2 = doc.addObject("PartDesign::Pocket", "Pocket001")
body.addObject(pocket2)
pocket2.Profile = sketch3
pocket2.Length = Q("0.5 in")

# Sketch on YZ plane
sketch4 = doc.addObject("Sketcher::SketchObject", "Sketch003")
body.addObject(sketch4)
sketch4.AttachmentSupport = (doc.YZ_Plane, [""])
sketch4.MapMode = "FlatFace"
sketch4.AttachmentOffset = App.Placement(Vector(0, 0, 0.5 * 25.4), App.Rotation())
sketch4.addGeometry(Part.LineSegment(Vector(38, 57, 0), Vector(13, 57, 0)), False)
sketch4.addGeometry(Part.LineSegment(Vector(13, 57, 0), Vector(13, 44, 0)), False)
sketch4.addGeometry(Part.LineSegment(Vector(13, 44, 0), Vector(38, 44, 0)), False)
sketch4.addGeometry(Part.LineSegment(Vector(38, 44, 0), Vector(38, 57, 0)), False)
sketch4.addGeometry(Part.LineSegment(Vector(-13, 57, 0), Vector(-38, 57, 0)), False)
sketch4.addGeometry(Part.LineSegment(Vector(-38, 57, 0), Vector(-38, 44, 0)), False)
sketch4.addGeometry(Part.LineSegment(Vector(-38, 44, 0), Vector(-13, 44, 0)), False)
sketch4.addGeometry(Part.LineSegment(Vector(-13, 44, 0), Vector(-13, 57, 0)), False)
sketch4.addGeometry(Part.LineSegment(Vector(-13, -44, 0), Vector(-38, -44, 0)), False)
sketch4.addGeometry(Part.LineSegment(Vector(-38, -44, 0), Vector(-38, -57, 0)), False)
sketch4.addGeometry(Part.LineSegment(Vector(-38, -57, 0), Vector(-13, -57, 0)), False)
sketch4.addGeometry(Part.LineSegment(Vector(-13, -57, 0), Vector(-13, -44, 0)), False)
sketch4.addGeometry(Part.LineSegment(Vector(13, -44, 0), Vector(13, -57, 0)), False)
sketch4.addGeometry(Part.LineSegment(Vector(13, -57, 0), Vector(38, -57, 0)), False)
sketch4.addGeometry(Part.LineSegment(Vector(38, -57, 0), Vector(38, -44, 0)), False)
sketch4.addGeometry(Part.LineSegment(Vector(38, -44, 0), Vector(13, -44, 0)), False)
sketch4.addConstraint(Sketcher.Constraint("Coincident", 0, 2, 1, 1))
sketch4.addConstraint(Sketcher.Constraint("Coincident", 1, 2, 2, 1))
sketch4.addConstraint(Sketcher.Constraint("Coincident", 2, 2, 3, 1))
sketch4.addConstraint(Sketcher.Constraint("Coincident", 3, 2, 0, 1))
sketch4.addConstraint(Sketcher.Constraint("Coincident", 4, 2, 5, 1))
sketch4.addConstraint(Sketcher.Constraint("Coincident", 5, 2, 6, 1))
sketch4.addConstraint(Sketcher.Constraint("Coincident", 6, 2, 7, 1))
sketch4.addConstraint(Sketcher.Constraint("Coincident", 7, 2, 4, 1))
sketch4.addConstraint(Sketcher.Constraint("Coincident", 8, 2, 9, 1))
sketch4.addConstraint(Sketcher.Constraint("Coincident", 9, 2, 10, 1))
sketch4.addConstraint(Sketcher.Constraint("Coincident", 10, 2, 11, 1))
sketch4.addConstraint(Sketcher.Constraint("Coincident", 11, 2, 8, 1))
sketch4.addConstraint(Sketcher.Constraint("Coincident", 12, 2, 13, 1))
sketch4.addConstraint(Sketcher.Constraint("Coincident", 13, 2, 14, 1))
sketch4.addConstraint(Sketcher.Constraint("Coincident", 14, 2, 15, 1))
sketch4.addConstraint(Sketcher.Constraint("Coincident", 15, 2, 12, 1))
sketch4.addConstraint(Sketcher.Constraint("Horizontal", 0))
sketch4.addConstraint(Sketcher.Constraint("Vertical", 1))
sketch4.addConstraint(Sketcher.Constraint("Horizontal", 2))
sketch4.addConstraint(Sketcher.Constraint("Vertical", 3))
sketch4.addConstraint(Sketcher.Constraint("Horizontal", 4))
sketch4.addConstraint(Sketcher.Constraint("Vertical", 5))
sketch4.addConstraint(Sketcher.Constraint("Horizontal", 6))
sketch4.addConstraint(Sketcher.Constraint("Vertical", 7))
sketch4.addConstraint(Sketcher.Constraint("Horizontal", 8))
sketch4.addConstraint(Sketcher.Constraint("Vertical", 9))
sketch4.addConstraint(Sketcher.Constraint("Horizontal", 10))
sketch4.addConstraint(Sketcher.Constraint("Vertical", 11))
sketch4.addConstraint(Sketcher.Constraint("Vertical", 12))
sketch4.addConstraint(Sketcher.Constraint("Horizontal", 13))
sketch4.addConstraint(Sketcher.Constraint("Vertical", 14))
sketch4.addConstraint(Sketcher.Constraint("Horizontal", 15))
sketch4.addConstraint(Sketcher.Constraint("Symmetric", 2, 2, 8, 2, -1, 1))
sketch4.addConstraint(Sketcher.Constraint("Symmetric", 0, 2, 10, 2, -1, 1))
sketch4.addConstraint(Sketcher.Constraint("Symmetric", 7, 2, 12, 2, -1, 1))
sketch4.addConstraint(Sketcher.Constraint("Symmetric", 5, 2, 14, 2, -1, 1))
sketch4.addConstraint(Sketcher.Constraint("Symmetric", 3, 2, 4, 2, -2))
sketch4.addConstraint(Sketcher.Constraint("Symmetric", 1, 2, 6, 2, -2))
sketch4.addConstraint(Sketcher.Constraint("DistanceX", 0, 2, 0, 1, Q("1 in")))
sketch4.addConstraint(Sketcher.Constraint("DistanceY", 1, 2, 1, 1, Q("0.5 in")))
sketch4.addConstraint(Sketcher.Constraint("DistanceX", 4, 2, 0, 2, Q("2 in")))
sketch4.addConstraint(Sketcher.Constraint("DistanceY", 8, 2, 4, 2, Q("4 in")))
pad2 = doc.addObject("PartDesign::Pad", "Pad001")
body.addObject(pad2)
pad2.Profile = sketch4
pad2.Length = Q("0.5 in")
pad2.Reversed = True

# Sketch on YZ plane
sketch5 = doc.addObject("Sketcher::SketchObject", "Sketch004")
body.addObject(sketch5)
sketch5.AttachmentSupport = (doc.YZ_Plane, [""])
sketch5.MapMode = "FlatFace"
sketch5.AttachmentOffset = App.Placement(Vector(0, 0, 0.5 * 25.4), App.Rotation())
sketch5.addGeometry(Part.Circle(Vector(-22.2, 22.2, 0), Vector(0, 0, 1), 2.6), False)
sketch5.addGeometry(Part.Circle(Vector(-22.2, 3.2, 0), Vector(0, 0, 1), 2.6), False)
sketch5.addGeometry(Part.Circle(Vector(-22.2, -15.9, 0), Vector(0, 0, 1), 2.6), False)
sketch5.addGeometry(Part.Circle(Vector(39.7, 46, 0), Vector(0, 0, 1), 2.2), False)
sketch5.addGeometry(Part.Circle(Vector(39.7, -46, 0), Vector(0, 0, 1), 2.2), False)
sketch5.addGeometry(Part.Circle(Vector(-39.7, -46, 0), Vector(0, 0, 1), 2.2), False)
sketch5.addGeometry(Part.Circle(Vector(-39.7, 46, 0), Vector(0, 0, 1), 2.2), False)
sketch5.addConstraint(Sketcher.Constraint("Equal", 0, 1))
sketch5.addConstraint(Sketcher.Constraint("Equal", 1, 2))
sketch5.addConstraint(Sketcher.Constraint("Equal", 3, 4))
sketch5.addConstraint(Sketcher.Constraint("Equal", 4, 5))
sketch5.addConstraint(Sketcher.Constraint("Equal", 5, 6))
sketch5.addConstraint(Sketcher.Constraint("Symmetric", 3, 3, 5, 3, -1, 1))
sketch5.addConstraint(Sketcher.Constraint("Symmetric", 4, 3, 6, 3, -1, 1))
sketch5.addConstraint(Sketcher.Constraint("Symmetric", 4, 3, 5, 3, -2))
sketch5.addConstraint(Sketcher.Constraint("Vertical", 0, 3, 1, 3))
sketch5.addConstraint(Sketcher.Constraint("Vertical", 1, 3, 2, 3))
sketch5.addConstraint(Sketcher.Constraint("Diameter", 0, Q("0.201 in")))
sketch5.addConstraint(Sketcher.Constraint("Diameter", 3, Q("0.1768 in")))
sketch5.addConstraint(Sketcher.Constraint("DistanceY", 2, 3, 0, 3, Q("1.5 in")))
sketch5.addConstraint(Sketcher.Constraint("DistanceY", 1, 3, 0, 3, Q("0.75 in")))
sketch5.addConstraint(Sketcher.Constraint("DistanceX", 0, 3, -1, 1, Q("0.875 in")))
sketch5.addConstraint(Sketcher.Constraint("DistanceY", -1, 1, 0, 3, Q("0.875 in")))
sketch5.addConstraint(Sketcher.Constraint("DistanceX", -1, 1, 3, 3, Q("1.5625 in")))
sketch5.addConstraint(Sketcher.Constraint("DistanceY", -1, 1, 3, 3, Q("1.8125 in")))
pocket3 = doc.addObject("PartDesign::Pocket", "Pocket002")
body.addObject(pocket3)
pocket3.Profile = sketch5
pocket3.Type = "ThroughAll"

# Sketch on YZ plane
sketch6 = doc.addObject("Sketcher::SketchObject", "Sketch005")
body.addObject(sketch6)
sketch6.AttachmentSupport = (doc.YZ_Plane, [""])
sketch6.MapMode = "FlatFace"
sketch6.AttachmentOffset = App.Placement(Vector(0, 0, 0.5 * 25.4), App.Rotation())
sketch6.addGeometry(Part.LineSegment(Vector(-3, 44, 0), Vector(-29, 44, 0)), False)
sketch6.addGeometry(Part.LineSegment(Vector(-29, 44, 0), Vector(-29, 32, 0)), False)
sketch6.addGeometry(Part.LineSegment(Vector(-29, 32, 0), Vector(-3, 32, 0)), False)
sketch6.addGeometry(Part.LineSegment(Vector(-3, 32, 0), Vector(-3, 44, 0)), False)
sketch6.addGeometry(Part.LineSegment(Vector(27, 44, 0), Vector(1, 44, 0)), False)
sketch6.addGeometry(Part.LineSegment(Vector(1, 44, 0), Vector(1, 32, 0)), False)
sketch6.addGeometry(Part.LineSegment(Vector(1, 32, 0), Vector(27, 32, 0)), False)
sketch6.addGeometry(Part.LineSegment(Vector(27, 32, 0), Vector(27, 44, 0)), False)
sketch6.addGeometry(Part.LineSegment(Vector(-3, -32, 0), Vector(-29, -32, 0)), False)
sketch6.addGeometry(Part.LineSegment(Vector(-29, -32, 0), Vector(-29, -44, 0)), False)
sketch6.addGeometry(Part.LineSegment(Vector(-29, -44, 0), Vector(-3, -44, 0)), False)
sketch6.addGeometry(Part.LineSegment(Vector(-3, -44, 0), Vector(-3, -32, 0)), False)
sketch6.addGeometry(Part.LineSegment(Vector(27, -32, 0), Vector(1, -32, 0)), False)
sketch6.addGeometry(Part.LineSegment(Vector(1, -32, 0), Vector(1, -44, 0)), False)
sketch6.addGeometry(Part.LineSegment(Vector(1, -44, 0), Vector(27, -44, 0)), False)
sketch6.addGeometry(Part.LineSegment(Vector(27, -44, 0), Vector(27, -32, 0)), False)
sketch6.addConstraint(Sketcher.Constraint("Coincident", 0, 2, 1, 1))
sketch6.addConstraint(Sketcher.Constraint("Coincident", 1, 2, 2, 1))
sketch6.addConstraint(Sketcher.Constraint("Coincident", 2, 2, 3, 1))
sketch6.addConstraint(Sketcher.Constraint("Coincident", 3, 2, 0, 1))
sketch6.addConstraint(Sketcher.Constraint("Coincident", 4, 2, 5, 1))
sketch6.addConstraint(Sketcher.Constraint("Coincident", 5, 2, 6, 1))
sketch6.addConstraint(Sketcher.Constraint("Coincident", 6, 2, 7, 1))
sketch6.addConstraint(Sketcher.Constraint("Coincident", 7, 2, 4, 1))
sketch6.addConstraint(Sketcher.Constraint("Coincident", 8, 2, 9, 1))
sketch6.addConstraint(Sketcher.Constraint("Coincident", 9, 2, 10, 1))
sketch6.addConstraint(Sketcher.Constraint("Coincident", 10, 2, 11, 1))
sketch6.addConstraint(Sketcher.Constraint("Coincident", 11, 2, 8, 1))
sketch6.addConstraint(Sketcher.Constraint("Coincident", 12, 2, 13, 1))
sketch6.addConstraint(Sketcher.Constraint("Coincident", 13, 2, 14, 1))
sketch6.addConstraint(Sketcher.Constraint("Coincident", 14, 2, 15, 1))
sketch6.addConstraint(Sketcher.Constraint("Coincident", 15, 2, 12, 1))
sketch6.addConstraint(Sketcher.Constraint("Horizontal", 0))
sketch6.addConstraint(Sketcher.Constraint("Vertical", 1))
sketch6.addConstraint(Sketcher.Constraint("Horizontal", 2))
sketch6.addConstraint(Sketcher.Constraint("Vertical", 3))
sketch6.addConstraint(Sketcher.Constraint("Horizontal", 4))
sketch6.addConstraint(Sketcher.Constraint("Vertical", 5))
sketch6.addConstraint(Sketcher.Constraint("Horizontal", 6))
sketch6.addConstraint(Sketcher.Constraint("Vertical", 7))
sketch6.addConstraint(Sketcher.Constraint("Horizontal", 8))
sketch6.addConstraint(Sketcher.Constraint("Vertical", 9))
sketch6.addConstraint(Sketcher.Constraint("Horizontal", 10))
sketch6.addConstraint(Sketcher.Constraint("Vertical", 11))
sketch6.addConstraint(Sketcher.Constraint("Horizontal", 12))
sketch6.addConstraint(Sketcher.Constraint("Vertical", 13))
sketch6.addConstraint(Sketcher.Constraint("Horizontal", 14))
sketch6.addConstraint(Sketcher.Constraint("Vertical", 15))
sketch6.addConstraint(Sketcher.Constraint("Symmetric", 1, 2, 8, 2, -1))
sketch6.addConstraint(Sketcher.Constraint("Symmetric", 3, 2, 10, 2, -1))
sketch6.addConstraint(Sketcher.Constraint("Symmetric", 5, 2, 12, 2, -1))
sketch6.addConstraint(Sketcher.Constraint("Symmetric", 7, 2, 14, 2, -1))
sketch6.addConstraint(Sketcher.Constraint("Horizontal", 3, 2, 4, 2))
sketch6.addConstraint(Sketcher.Constraint("Horizontal", 2, 2, 5, 2))
sketch6.addConstraint(Sketcher.Constraint("Equal", 2, 4))
sketch6.addConstraint(Sketcher.Constraint("DistanceX", 0, 2, 0, 1, Q("1 in")))
sketch6.addConstraint(Sketcher.Constraint("DistanceY", 1, 2, 1, 1, Q("0.5 in")))
sketch6.addConstraint(Sketcher.Constraint("DistanceY", 8, 2, 0, 2, Q("3 in")))
sketch6.addConstraint(Sketcher.Constraint("DistanceX", 0, 2, -1, 1, Q("1.125 in")))
sketch6.addConstraint(Sketcher.Constraint("DistanceX", -1, 1, 4, 2, 1.46618))
pocket4 = doc.addObject("PartDesign::Pocket", "Pocket003")
body.addObject(pocket4)
pocket4.Profile = sketch6
pocket4.Type = "ThroughAll"

doc.recompute()
